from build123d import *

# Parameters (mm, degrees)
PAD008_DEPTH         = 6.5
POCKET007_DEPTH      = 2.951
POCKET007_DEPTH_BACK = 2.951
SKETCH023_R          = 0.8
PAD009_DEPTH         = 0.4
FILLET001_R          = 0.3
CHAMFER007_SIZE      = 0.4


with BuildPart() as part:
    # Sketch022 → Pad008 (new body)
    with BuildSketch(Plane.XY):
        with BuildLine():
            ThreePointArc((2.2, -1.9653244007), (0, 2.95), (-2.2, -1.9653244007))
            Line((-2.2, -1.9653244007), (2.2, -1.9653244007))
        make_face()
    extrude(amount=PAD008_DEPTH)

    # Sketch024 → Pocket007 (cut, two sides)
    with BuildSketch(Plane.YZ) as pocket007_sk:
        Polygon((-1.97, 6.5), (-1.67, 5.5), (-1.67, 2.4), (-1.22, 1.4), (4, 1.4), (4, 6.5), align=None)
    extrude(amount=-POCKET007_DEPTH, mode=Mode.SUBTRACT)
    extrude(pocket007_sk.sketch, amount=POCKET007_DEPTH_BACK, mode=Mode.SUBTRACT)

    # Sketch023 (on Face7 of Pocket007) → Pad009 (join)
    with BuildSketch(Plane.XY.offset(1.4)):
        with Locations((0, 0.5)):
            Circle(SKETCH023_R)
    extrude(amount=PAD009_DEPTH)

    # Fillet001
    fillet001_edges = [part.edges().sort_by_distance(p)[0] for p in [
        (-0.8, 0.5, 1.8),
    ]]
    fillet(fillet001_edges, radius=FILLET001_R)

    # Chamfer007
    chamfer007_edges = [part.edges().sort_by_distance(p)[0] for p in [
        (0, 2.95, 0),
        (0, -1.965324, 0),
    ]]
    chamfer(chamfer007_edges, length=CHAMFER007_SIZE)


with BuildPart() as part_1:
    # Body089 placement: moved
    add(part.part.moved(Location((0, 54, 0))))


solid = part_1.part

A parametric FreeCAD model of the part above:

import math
import FreeCAD as App
import Part
import Sketcher
Q = App.Units.Quantity


def edges_at(feature, points):
    """Names of the edges that pass closest to the given points."""
    edges = feature.Shape.Edges
    near = lambda p: min(range(len(edges)), key=lambda i: edges[i].distToShape(Part.Vertex(*p))[0])
    return sorted({f"Edge{near(p) + 1}" for p in points})

doc = App.newDocument("Part")
body = doc.addObject("PartDesign::Body", "Body")

# Sketch on XY plane
sketch1 = body.newObject("Sketcher::SketchObject", "Sketch")
sketch1.AttachmentSupport = (doc.getObject("XY_Plane"), [""])
sketch1.MapMode = "FlatFace"
sketch1.addGeometry([
    Part.ArcOfCircle(Part.Circle(App.Vector(0, 0, 0), App.Vector(0, 0, 1), 3), math.radians(-42), math.radians(222)),
    Part.LineSegment(App.Vector(-2.2, -2, 0), App.Vector(2.2, -2, 0)),
], False)
sketch1.addConstraint([
    Sketcher.Constraint("Coincident", 0, 1, 1, 2),
    Sketcher.Constraint("Coincident", 1, 1, 0, 2),
    Sketcher.Constraint("Horizontal", 1),
    Sketcher.Constraint("Coincident", 0, 3, -1, 1),
    Sketcher.Constraint("Radius", 0, Q("2.95 mm")),
    Sketcher.Constraint("DistanceX", 1, 1, 1, 2, Q("4.4 mm")),
])
pad1 = body.newObject("PartDesign::Pad", "Pad")
pad1.Profile = sketch1
pad1.Length = 6.5

# Sketch on YZ plane
sketch2 = body.newObject("Sketcher::SketchObject", "Sketch001")
sketch2.AttachmentSupport = (doc.getObject("YZ_Plane"), [""])
sketch2.MapMode = "FlatFace"
sketch2.addGeometry([
    Part.LineSegment(App.Vector(-2, 6.5, 0), App.Vector(-1.7, 5.5, 0)),  # 0
    Part.LineSegment(App.Vector(-1.7, 5.5, 0), App.Vector(-1.7, 2.4, 0)),  # 1
    Part.LineSegment(App.Vector(-1.7, 2.4, 0), App.Vector(-1.2, 1.4, 0)),  # 2
    Part.LineSegment(App.Vector(-1.2, 1.4, 0), App.Vector(4, 1.4, 0)),  # 3
    Part.LineSegment(App.Vector(4, 1.4, 0), App.Vector(4, 6.5, 0)),  # 4
    Part.LineSegment(App.Vector(4, 6.5, 0), App.Vector(-2, 6.5, 0)),  # 5
], False)
sketch2.addConstraint([
    Sketcher.Constraint("Coincident", 0, 2, 1, 1),
    Sketcher.Constraint("Coincident", 1, 2, 2, 1),
    Sketcher.Constraint("Coincident", 2, 2, 3, 1),
    Sketcher.Constraint("Coincident", 3, 2, 4, 1),
    Sketcher.Constraint("Coincident", 4, 2, 5, 1),
    Sketcher.Constraint("Coincident", 5, 2, 0, 1),
    Sketcher.Constraint("Vertical", 1),
    Sketcher.Constraint("Horizontal", 3),
    Sketcher.Constraint("Vertical", 4),
    Sketcher.Constraint("Horizontal", 5),
    Sketcher.Constraint("DistanceY", 1, 2, 1, 1, Q("3.1 mm")),
    Sketcher.Constraint("DistanceY", 4, 1, 4, 2, Q("5.1 mm")),
    Sketcher.Constraint("DistanceX", -1, 1, 3, 2, Q("4 mm")),
    Sketcher.Constraint("DistanceY", 2, 2, 1, 2, Q("1 mm")),
    Sketcher.Constraint("DistanceX", 3, 1, 3, 2, Q("5.22 mm")),
    Sketcher.Constraint("DistanceX", 5, 2, 5, 1, Q("5.97 mm")),
    Sketcher.Constraint("DistanceY", -1, 1, 0, 2, Q("5.5 mm")),
    Sketcher.Constraint("DistanceX", 5, 2, 0, 2, Q("0.3 mm")),
])
pocket1 = body.newObject("PartDesign::Pocket", "Pocket")
pocket1.Profile = sketch2
pocket1.Type = "ThroughAll"
pocket1.Midplane = True

# Sketch on XY plane
sketch3 = body.newObject("Sketcher::SketchObject", "Sketch002")
sketch3.AttachmentSupport = (doc.getObject("XY_Plane"), [""])
sketch3.MapMode = "FlatFace"
sketch3.AttachmentOffset = App.Placement(App.Vector(0, 0, 1.4), App.Rotation())
sketch3.addGeometry(Part.Circle(App.Vector(0, 0.5, 0), App.Vector(0, 0, 1), 0.8), False)
sketch3.addConstraint([
    Sketcher.Constraint("PointOnObject", 0, 3, -2),
    Sketcher.Constraint("Diameter", 0, Q("1.6 mm")),
    Sketcher.Constraint("DistanceY", -1, 1, 0, 3, Q("0.5 mm")),
])
pad2 = body.newObject("PartDesign::Pad", "Pad001")
pad2.Profile = sketch3
pad2.Length = 0.4
doc.recompute()

fillet = body.newObject("PartDesign::Fillet", "Fillet")
fillet.Base = (pad2, edges_at(pad2, [(-0.8, 0.5, 1.8)]))
fillet.Radius = 0.3
doc.recompute()

chamfer = body.newObject("PartDesign::Chamfer", "Chamfer")
chamfer.Base = (fillet, edges_at(fillet, [(0, 2.95, 0), (0, -1.965, 0)]))
chamfer.Size = 0.4
body2 = doc.addObject("PartDesign::Body", "Body001")
doc.recompute()

body.Placement = App.Placement(App.Vector(0, 54, 0), App.Rotation(App.Vector(0, 0, 1), 0))
boolean = body2.newObject("PartDesign::Boolean", "Boolean")
boolean.Type = "Fuse"
boolean.addObjects([body])

doc.recompute()
